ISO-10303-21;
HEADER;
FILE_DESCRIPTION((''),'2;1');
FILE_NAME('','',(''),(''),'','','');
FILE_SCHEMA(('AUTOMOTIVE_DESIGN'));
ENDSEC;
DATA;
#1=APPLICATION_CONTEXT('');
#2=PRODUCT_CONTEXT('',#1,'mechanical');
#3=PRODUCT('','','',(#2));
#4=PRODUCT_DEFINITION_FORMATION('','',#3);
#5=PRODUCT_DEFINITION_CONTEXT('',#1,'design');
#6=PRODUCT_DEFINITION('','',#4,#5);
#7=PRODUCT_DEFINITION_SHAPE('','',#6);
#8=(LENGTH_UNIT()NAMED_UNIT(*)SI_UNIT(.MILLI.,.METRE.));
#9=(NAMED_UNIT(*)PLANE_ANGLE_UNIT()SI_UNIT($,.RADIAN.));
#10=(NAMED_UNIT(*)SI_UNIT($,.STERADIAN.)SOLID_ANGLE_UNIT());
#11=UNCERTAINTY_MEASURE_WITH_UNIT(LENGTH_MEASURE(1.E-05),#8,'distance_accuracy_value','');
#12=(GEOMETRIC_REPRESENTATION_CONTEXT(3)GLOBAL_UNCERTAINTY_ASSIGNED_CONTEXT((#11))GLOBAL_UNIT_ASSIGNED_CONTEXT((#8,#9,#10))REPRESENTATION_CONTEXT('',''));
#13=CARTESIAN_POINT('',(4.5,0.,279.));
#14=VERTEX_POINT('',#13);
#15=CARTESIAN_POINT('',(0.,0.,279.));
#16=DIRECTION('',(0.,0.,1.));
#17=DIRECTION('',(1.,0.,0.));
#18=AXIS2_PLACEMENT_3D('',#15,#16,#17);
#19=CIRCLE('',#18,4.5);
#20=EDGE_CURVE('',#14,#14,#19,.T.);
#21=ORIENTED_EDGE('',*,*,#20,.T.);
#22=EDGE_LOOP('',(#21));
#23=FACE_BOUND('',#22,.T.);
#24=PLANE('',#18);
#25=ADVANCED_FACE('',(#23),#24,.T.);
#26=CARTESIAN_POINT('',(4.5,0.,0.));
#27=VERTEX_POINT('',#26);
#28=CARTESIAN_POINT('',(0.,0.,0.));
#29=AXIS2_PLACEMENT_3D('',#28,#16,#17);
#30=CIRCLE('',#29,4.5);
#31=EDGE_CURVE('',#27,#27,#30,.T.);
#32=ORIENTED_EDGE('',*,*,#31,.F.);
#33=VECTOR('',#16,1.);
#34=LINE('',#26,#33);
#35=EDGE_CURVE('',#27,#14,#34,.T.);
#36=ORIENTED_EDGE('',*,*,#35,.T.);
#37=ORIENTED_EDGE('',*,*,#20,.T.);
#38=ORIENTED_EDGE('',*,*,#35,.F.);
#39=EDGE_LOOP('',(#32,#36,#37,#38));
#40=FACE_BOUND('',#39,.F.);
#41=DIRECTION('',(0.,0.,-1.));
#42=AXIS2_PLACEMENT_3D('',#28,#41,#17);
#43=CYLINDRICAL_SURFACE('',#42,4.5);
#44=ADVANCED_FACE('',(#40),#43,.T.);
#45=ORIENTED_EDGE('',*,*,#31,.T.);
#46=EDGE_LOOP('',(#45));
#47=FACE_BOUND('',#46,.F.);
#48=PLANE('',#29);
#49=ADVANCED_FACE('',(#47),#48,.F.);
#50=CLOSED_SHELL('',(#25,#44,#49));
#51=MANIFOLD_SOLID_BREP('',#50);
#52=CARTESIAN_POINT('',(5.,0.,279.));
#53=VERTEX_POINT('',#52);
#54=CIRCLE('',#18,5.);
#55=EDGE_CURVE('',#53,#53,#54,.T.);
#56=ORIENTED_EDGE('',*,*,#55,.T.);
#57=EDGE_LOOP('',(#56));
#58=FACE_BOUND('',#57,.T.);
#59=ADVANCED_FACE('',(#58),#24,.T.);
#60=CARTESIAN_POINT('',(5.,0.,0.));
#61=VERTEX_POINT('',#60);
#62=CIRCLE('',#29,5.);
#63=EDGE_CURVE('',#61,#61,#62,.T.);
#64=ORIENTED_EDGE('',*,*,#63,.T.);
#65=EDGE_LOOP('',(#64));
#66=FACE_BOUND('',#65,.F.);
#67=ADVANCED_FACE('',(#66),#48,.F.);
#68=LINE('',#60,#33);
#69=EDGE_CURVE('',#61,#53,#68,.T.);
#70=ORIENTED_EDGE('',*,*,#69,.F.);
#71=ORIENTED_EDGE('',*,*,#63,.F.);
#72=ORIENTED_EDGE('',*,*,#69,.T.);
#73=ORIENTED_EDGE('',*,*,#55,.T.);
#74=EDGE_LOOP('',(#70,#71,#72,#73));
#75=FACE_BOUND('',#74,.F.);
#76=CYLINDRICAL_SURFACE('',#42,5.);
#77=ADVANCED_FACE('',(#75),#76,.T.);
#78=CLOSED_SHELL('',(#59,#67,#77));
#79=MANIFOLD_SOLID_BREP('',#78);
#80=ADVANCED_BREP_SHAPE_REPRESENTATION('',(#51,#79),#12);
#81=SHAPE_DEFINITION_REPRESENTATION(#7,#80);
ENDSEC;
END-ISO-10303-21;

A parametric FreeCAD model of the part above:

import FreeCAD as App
import Part
import Sketcher
from FreeCAD import Vector
Q = App.Units.Quantity

doc = App.newDocument("Part")
body = doc.addObject("PartDesign::Body", "Body")

sketch1 = doc.addObject("Sketcher::SketchObject", "Sketch")
body.addObject(sketch1)
sketch1.AttachmentSupport = (doc.XY_Plane, [""])
sketch1.MapMode = "FlatFace"
sketch1.addGeometry(Part.Circle(Vector(0, 0, 0), Vector(0, 0, 1), 4.5), False)
sketch1.addConstraint(Sketcher.Constraint("Coincident", 0, 3, -1, 1))
sketch1.addConstraint(Sketcher.Constraint("Diameter", 0, Q("9 mm")))
pad1 = doc.addObject("PartDesign::Pad", "Pad")
body.addObject(pad1)
pad1.Profile = sketch1
pad1.Length = 279
body2 = doc.addObject("PartDesign::Body", "Body001")

sketch2 = doc.addObject("Sketcher::SketchObject", "Sketch001")
body2.addObject(sketch2)
sketch2.AttachmentSupport = (doc.getObject("XY_Plane001"), [""])
sketch2.MapMode = "FlatFace"
sketch2.addGeometry(Part.Circle(Vector(0, 0, 0), Vector(0, 0, 1), 5), False)
sketch2.addConstraint(Sketcher.Constraint("Coincident", 0, 3, -1, 1))
sketch2.addConstraint(Sketcher.Constraint("Diameter", 0, Q("10 mm")))
pad2 = doc.addObject("PartDesign::Pad", "Pad001")
body2.addObject(pad2)
pad2.Profile = sketch2
pad2.Length = 279

doc.recompute()
